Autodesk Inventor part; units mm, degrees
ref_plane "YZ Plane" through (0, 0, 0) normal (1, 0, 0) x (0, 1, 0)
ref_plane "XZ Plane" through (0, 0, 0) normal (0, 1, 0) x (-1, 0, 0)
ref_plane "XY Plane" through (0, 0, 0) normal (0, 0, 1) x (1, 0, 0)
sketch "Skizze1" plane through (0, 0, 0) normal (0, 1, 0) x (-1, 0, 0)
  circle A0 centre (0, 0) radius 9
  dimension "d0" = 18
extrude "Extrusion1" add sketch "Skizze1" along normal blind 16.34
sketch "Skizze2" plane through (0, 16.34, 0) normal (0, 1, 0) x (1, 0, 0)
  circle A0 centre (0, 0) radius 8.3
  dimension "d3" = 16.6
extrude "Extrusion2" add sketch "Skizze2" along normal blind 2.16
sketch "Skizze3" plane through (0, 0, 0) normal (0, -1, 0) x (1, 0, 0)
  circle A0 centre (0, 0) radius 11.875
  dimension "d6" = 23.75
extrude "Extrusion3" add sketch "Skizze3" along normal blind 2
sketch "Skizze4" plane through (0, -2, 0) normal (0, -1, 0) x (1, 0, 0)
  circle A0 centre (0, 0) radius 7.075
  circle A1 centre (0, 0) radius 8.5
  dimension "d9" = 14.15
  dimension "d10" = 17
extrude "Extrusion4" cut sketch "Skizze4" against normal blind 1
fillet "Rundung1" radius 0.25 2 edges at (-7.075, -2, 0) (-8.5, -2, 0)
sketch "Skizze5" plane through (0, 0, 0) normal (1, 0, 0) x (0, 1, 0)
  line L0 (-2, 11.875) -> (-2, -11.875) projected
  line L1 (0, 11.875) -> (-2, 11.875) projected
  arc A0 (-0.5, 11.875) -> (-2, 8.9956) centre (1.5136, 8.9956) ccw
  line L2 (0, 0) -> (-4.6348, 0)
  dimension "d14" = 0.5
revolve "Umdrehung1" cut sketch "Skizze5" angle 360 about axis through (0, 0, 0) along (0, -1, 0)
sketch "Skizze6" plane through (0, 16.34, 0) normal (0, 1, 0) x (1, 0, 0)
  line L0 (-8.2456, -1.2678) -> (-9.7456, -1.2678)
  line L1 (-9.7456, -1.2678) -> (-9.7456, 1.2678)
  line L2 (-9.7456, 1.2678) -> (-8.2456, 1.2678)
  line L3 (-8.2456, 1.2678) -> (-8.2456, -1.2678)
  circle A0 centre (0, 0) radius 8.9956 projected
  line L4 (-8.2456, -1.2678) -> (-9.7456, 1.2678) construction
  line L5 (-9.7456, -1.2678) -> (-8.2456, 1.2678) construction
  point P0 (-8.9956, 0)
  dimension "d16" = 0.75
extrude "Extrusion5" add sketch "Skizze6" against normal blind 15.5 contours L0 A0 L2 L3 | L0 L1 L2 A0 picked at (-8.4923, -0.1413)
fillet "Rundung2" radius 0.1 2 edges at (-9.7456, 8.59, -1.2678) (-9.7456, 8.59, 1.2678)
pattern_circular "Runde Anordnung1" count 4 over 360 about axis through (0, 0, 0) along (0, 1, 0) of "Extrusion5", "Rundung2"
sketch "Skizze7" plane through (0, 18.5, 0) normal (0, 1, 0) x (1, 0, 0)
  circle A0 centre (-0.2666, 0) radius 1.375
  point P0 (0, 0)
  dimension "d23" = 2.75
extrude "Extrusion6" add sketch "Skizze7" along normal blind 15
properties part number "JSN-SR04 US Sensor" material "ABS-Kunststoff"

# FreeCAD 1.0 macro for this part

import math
import FreeCAD as App
import Part
import Sketcher

V = App.Vector


def edges_at(feature, points):
    """Names of the edges that pass closest to the given points."""
    edges = feature.Shape.Edges
    near = lambda p: min(range(len(edges)), key=lambda i: edges[i].distToShape(Part.Vertex(*p))[0])
    return sorted({f"Edge{near(p) + 1}" for p in points})

doc = App.newDocument("Part")
params = doc.addObject("Spreadsheet::Sheet", "Params")
for row, (alias, value) in enumerate([
    ("sketch1_diameter", "18 mm"),
    ("pad1_length", "16.34 mm"),
    ("sketch2_diameter", "16.6 mm"),
    ("pad2_length", "2.16 mm"),
    ("sketch3_diameter", "23.75 mm"),
    ("pad3_length", "2 mm"),
    ("sketch4_diameter", "17 mm"),
    ("sketch4_diameter2", "14.15 mm"),
    ("pocket1_length", "1 mm"),
    ("fillet_radius", "0.25 mm"),
    ("sketch5_width", "1.5 mm"),
    ("groove_angle", "360 deg"),
    ("sketch6_width", "1.5 mm"),
    ("pad4_length", "15.5 mm"),
    ("fillet2_radius", "0.1 mm"),
    ("sketch7_diameter", "2.75 mm"),
    ("pad5_length", "15 mm"),
], start=1):
    params.set(f"A{row}", alias)
    params.set(f"B{row}", "=" + value)
    params.setAlias(f"B{row}", alias)

body = doc.addObject("PartDesign::Body", "Body")

sketch1 = body.newObject("Sketcher::SketchObject", "Sketch")
sketch1.AttachmentSupport = (doc.getObject("XZ_Plane"), [""])
sketch1.MapMode = "FlatFace"
sketch1.addGeometry(Part.Circle(V(0, 0, 0), V(0, 0, 1), 9), False)
sketch1.addConstraint(Sketcher.Constraint("Coincident", 0, 3, -1, 1))
sketch1.addConstraint(Sketcher.Constraint("Diameter", 0, 18.0))
sketch1.setExpression("Constraints[1]", "Params.sketch1_diameter")
pad1 = body.newObject("PartDesign::Pad", "Pad")
pad1.Profile = sketch1
pad1.setExpression("Length", "Params.pad1_length")
pad1.Reversed = True

sketch2 = body.newObject("Sketcher::SketchObject", "Sketch001")
sketch2.AttachmentSupport = (doc.getObject("XZ_Plane"), [""])
sketch2.MapMode = "FlatFace"
sketch2.AttachmentOffset = App.Placement(V(0, 0, -16.34), App.Rotation())
sketch2.addGeometry(Part.Circle(V(0, 0, 0), V(0, 0, 1), 8), False)
sketch2.addConstraint(Sketcher.Constraint("Coincident", 0, 3, -1, 1))
sketch2.addConstraint(Sketcher.Constraint("Diameter", 0, 16.6))
sketch2.setExpression("Constraints[1]", "Params.sketch2_diameter")
pad2 = body.newObject("PartDesign::Pad", "Pad001")
pad2.Profile = sketch2
pad2.setExpression("Length", "Params.pad2_length")
pad2.Reversed = True

sketch3 = body.newObject("Sketcher::SketchObject", "Sketch002")
sketch3.AttachmentSupport = (doc.getObject("XZ_Plane"), [""])
sketch3.MapMode = "FlatFace"
sketch3.addGeometry(Part.Circle(V(0, 0, 0), V(0, 0, 1), 12), False)
sketch3.addConstraint(Sketcher.Constraint("Coincident", 0, 3, -1, 1))
sketch3.addConstraint(Sketcher.Constraint("Diameter", 0, 23.75))
sketch3.setExpression("Constraints[1]", "Params.sketch3_diameter")
pad3 = body.newObject("PartDesign::Pad", "Pad002")
pad3.Profile = sketch3
pad3.setExpression("Length", "Params.pad3_length")

sketch4 = body.newObject("Sketcher::SketchObject", "Sketch003")
sketch4.AttachmentSupport = (doc.getObject("XZ_Plane"), [""])
sketch4.MapMode = "FlatFace"
sketch4.AttachmentOffset = App.Placement(V(0, 0, 2), App.Rotation())
sketch4.addGeometry(Part.Circle(V(0, 0, 0), V(0, 0, 1), 8), False)
sketch4.addGeometry(Part.Circle(V(0, 0, 0), V(0, 0, 1), 7), False)
sketch4.addConstraint(Sketcher.Constraint("Coincident", 0, 3, -1, 1))
sketch4.addConstraint(Sketcher.Constraint("Coincident", 1, 3, -1, 1))
sketch4.addConstraint(Sketcher.Constraint("Diameter", 0, 17.0))
sketch4.addConstraint(Sketcher.Constraint("Diameter", 1, 14.15))
sketch4.setExpression("Constraints[2]", "Params.sketch4_diameter")
sketch4.setExpression("Constraints[3]", "Params.sketch4_diameter2")
pocket1 = body.newObject("PartDesign::Pocket", "Pocket")
pocket1.Profile = sketch4
pocket1.setExpression("Length", "Params.pocket1_length")
doc.recompute()

fillet = body.newObject("PartDesign::Fillet", "Fillet")
fillet.Base = (pocket1, edges_at(pocket1, [(-7.075, -2, 0), (-8.5, -2, 0)]))
fillet.setExpression("Radius", "Params.fillet_radius")

sketch5 = body.newObject("Sketcher::SketchObject", "Sketch004")
sketch5.AttachmentSupport = (doc.getObject("YZ_Plane"), [""])
sketch5.MapMode = "FlatFace"
sketch5.addGeometry(Part.LineSegment(V(-0.5, 11.9, 0), V(-2, 11.9, 0)), False)
sketch5.addGeometry(Part.LineSegment(V(-2, 11.9, 0), V(-2, 9, 0)), False)
sketch5.addGeometry(Part.ArcOfCircle(Part.Circle(V(1.5, 9, 0), V(0, 0, 1), 3.5), math.radians(125), math.radians(180)), False)
sketch5.addConstraint(Sketcher.Constraint("Coincident", 0, 2, 1, 1))
sketch5.addConstraint(Sketcher.Constraint("Tangent", 1, 2, 2, 2))
sketch5.addConstraint(Sketcher.Constraint("Coincident", 2, 1, 0, 1))
sketch5.addConstraint(Sketcher.Constraint("Horizontal", 0))
sketch5.addConstraint(Sketcher.Constraint("Vertical", 1))
sketch5.addConstraint(Sketcher.Constraint("DistanceX", 2, 1, -1, 1, 0.5))
sketch5.addConstraint(Sketcher.Constraint("DistanceX", 0, 2, 0, 1, 1.5))
sketch5.addConstraint(Sketcher.Constraint("Radius", 2, 3.5136))
sketch5.addConstraint(Sketcher.Constraint("DistanceY", -1, 1, 0, 2, 11.875))
sketch5.setExpression("Constraints[6]", "Params.sketch5_width")
groove = body.newObject("PartDesign::Groove", "Groove")
groove.Profile = sketch5
groove.ReferenceAxis = (sketch5, ["H_Axis"])
groove.setExpression("Angle", "Params.groove_angle")

sketch6 = body.newObject("Sketcher::SketchObject", "Sketch005")
sketch6.AttachmentSupport = (doc.getObject("XZ_Plane"), [""])
sketch6.MapMode = "FlatFace"
sketch6.AttachmentOffset = App.Placement(V(0, 0, -16.34), App.Rotation())
sketch6.addGeometry(Part.LineSegment(V(-8.2, 1.3, 0), V(-8.2, -1.3, 0)), False)
sketch6.addGeometry(Part.LineSegment(V(-8.2, -1.3, 0), V(-9.7, -1.3, 0)), False)
sketch6.addGeometry(Part.LineSegment(V(-9.7, -1.3, 0), V(-9.7, 1.3, 0)), False)
sketch6.addGeometry(Part.LineSegment(V(-9.7, 1.3, 0), V(-8.2, 1.3, 0)), False)
sketch6.addConstraint(Sketcher.Constraint("Coincident", 0, 2, 1, 1))
sketch6.addConstraint(Sketcher.Constraint("Coincident", 1, 2, 2, 1))
sketch6.addConstraint(Sketcher.Constraint("Coincident", 2, 2, 3, 1))
sketch6.addConstraint(Sketcher.Constraint("Coincident", 3, 2, 0, 1))
sketch6.addConstraint(Sketcher.Constraint("Vertical", 0))
sketch6.addConstraint(Sketcher.Constraint("Horizontal", 1))
sketch6.addConstraint(Sketcher.Constraint("Vertical", 2))
sketch6.addConstraint(Sketcher.Constraint("Horizontal", 3))
sketch6.addConstraint(Sketcher.Constraint("DistanceX", 1, 2, 1, 1, 1.5))
sketch6.addConstraint(Sketcher.Constraint("DistanceY", 0, 2, 0, 1, 2.5356))
sketch6.addConstraint(Sketcher.Constraint("DistanceX", 0, 2, -1, 1, 8.2456))
sketch6.addConstraint(Sketcher.Constraint("DistanceY", 0, 2, -1, 1, 1.2678))
sketch6.setExpression("Constraints[8]", "Params.sketch6_width")
pad4 = body.newObject("PartDesign::Pad", "Pad003")
pad4.Profile = sketch6
pad4.setExpression("Length", "Params.pad4_length")
doc.recompute()

fillet2 = body.newObject("PartDesign::Fillet", "Fillet001")
fillet2.Base = (pad4, edges_at(pad4, [(-9.746, 8.59, -1.268), (-9.746, 8.59, 1.268)]))
fillet2.setExpression("Radius", "Params.fillet2_radius")
doc.recompute()

polarpattern = body.newObject("PartDesign::PolarPattern", "PolarPattern")
polarpattern.Originals = [pad4, fillet2]
polarpattern.Axis = (doc.getObject("Y_Axis"), [""])
polarpattern.Angle = 360
polarpattern.Occurrences = 4
body.Tip = polarpattern

sketch7 = body.newObject("Sketcher::SketchObject", "Sketch006")
sketch7.AttachmentSupport = (doc.getObject("XZ_Plane"), [""])
sketch7.MapMode = "FlatFace"
sketch7.AttachmentOffset = App.Placement(V(0, 0, -18.5), App.Rotation())
sketch7.addGeometry(Part.Circle(V(-0.3, 0, 0), V(0, 0, 1), 1.4), False)
sketch7.addConstraint(Sketcher.Constraint("PointOnObject", 0, 3, -1))
sketch7.addConstraint(Sketcher.Constraint("Diameter", 0, 2.75))
sketch7.addConstraint(Sketcher.Constraint("DistanceX", 0, 3, -1, 1, 0.2666))
sketch7.setExpression("Constraints[1]", "Params.sketch7_diameter")
pad5 = body.newObject("PartDesign::Pad", "Pad004")
pad5.Profile = sketch7
pad5.setExpression("Length", "Params.pad5_length")
pad5.Reversed = True

doc.recompute()
